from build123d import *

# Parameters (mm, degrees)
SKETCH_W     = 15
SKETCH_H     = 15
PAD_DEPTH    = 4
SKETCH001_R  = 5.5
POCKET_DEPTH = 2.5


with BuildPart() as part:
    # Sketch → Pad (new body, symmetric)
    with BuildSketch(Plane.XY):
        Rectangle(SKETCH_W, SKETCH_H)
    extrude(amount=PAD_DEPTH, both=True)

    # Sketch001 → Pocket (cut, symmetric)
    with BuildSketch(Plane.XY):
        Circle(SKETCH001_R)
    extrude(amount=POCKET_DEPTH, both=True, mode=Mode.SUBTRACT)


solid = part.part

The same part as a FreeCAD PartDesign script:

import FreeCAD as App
import Part
import Sketcher

doc = App.newDocument("Part")
params = doc.addObject("Spreadsheet::Sheet", "Params")
for row, (alias, value) in enumerate([
    ("sketch1_width", "15 mm"),
    ("pad1_length", "8 mm"),
    ("sketch2_diameter", "11 mm"),
    ("pocket1_length", "5 mm"),
], start=1):
    params.set(f"A{row}", alias)
    params.set(f"B{row}", "=" + value)
    params.setAlias(f"B{row}", alias)

body = doc.addObject("PartDesign::Body", "Body")

# Sketch on XY plane
sketch1 = doc.addObject("Sketcher::SketchObject", "Sketch")
body.addObject(sketch1)
sketch1.AttachmentSupport = (doc.XY_Plane, [""])
sketch1.MapMode = "FlatFace"
sketch1.addGeometry([
    Part.LineSegment(App.Vector(-8, 8, 0), App.Vector(-8, -8, 0)),
    Part.LineSegment(App.Vector(-8, -8, 0), App.Vector(8, -8, 0)),
    Part.LineSegment(App.Vector(8, -8, 0), App.Vector(8, 8, 0)),
    Part.LineSegment(App.Vector(8, 8, 0), App.Vector(-8, 8, 0)),
], False)
sketch1.addConstraint([
    Sketcher.Constraint("Coincident", 0, 2, 1, 1),
    Sketcher.Constraint("Coincident", 1, 2, 2, 1),
    Sketcher.Constraint("Coincident", 2, 2, 3, 1),
    Sketcher.Constraint("Coincident", 3, 2, 0, 1),
    Sketcher.Constraint("Vertical", 0),
    Sketcher.Constraint("Horizontal", 1),
    Sketcher.Constraint("Vertical", 2),
    Sketcher.Constraint("Horizontal", 3),
    Sketcher.Constraint("Symmetric", 0, 2, 2, 2, -1, 1),
    Sketcher.Constraint("Equal", 3, 0),
    Sketcher.Constraint("DistanceX", 1, 1, 1, 2, 15.0),
])
sketch1.setExpression("Constraints[10]", "Params.sketch1_width")
pad1 = doc.addObject("PartDesign::Pad", "Pad")
body.addObject(pad1)
pad1.Profile = sketch1
pad1.setExpression("Length", "Params.pad1_length")
pad1.Midplane = True

# Sketch on XY plane
sketch2 = doc.addObject("Sketcher::SketchObject", "Sketch001")
body.addObject(sketch2)
sketch2.AttachmentSupport = (doc.XY_Plane, [""])
sketch2.MapMode = "FlatFace"
sketch2.addGeometry(Part.Circle(App.Vector(0, 0, 0), App.Vector(0, 0, 1), 6), False)
sketch2.addConstraint([
    Sketcher.Constraint("Coincident", 0, 3, -1, 1),
    Sketcher.Constraint("Diameter", 0, 11.0),
])
sketch2.setExpression("Constraints[1]", "Params.sketch2_diameter")
pocket1 = doc.addObject("PartDesign::Pocket", "Pocket")
body.addObject(pocket1)
pocket1.Profile = sketch2
pocket1.setExpression("Length", "Params.pocket1_length")
pocket1.Midplane = True

doc.recompute()
